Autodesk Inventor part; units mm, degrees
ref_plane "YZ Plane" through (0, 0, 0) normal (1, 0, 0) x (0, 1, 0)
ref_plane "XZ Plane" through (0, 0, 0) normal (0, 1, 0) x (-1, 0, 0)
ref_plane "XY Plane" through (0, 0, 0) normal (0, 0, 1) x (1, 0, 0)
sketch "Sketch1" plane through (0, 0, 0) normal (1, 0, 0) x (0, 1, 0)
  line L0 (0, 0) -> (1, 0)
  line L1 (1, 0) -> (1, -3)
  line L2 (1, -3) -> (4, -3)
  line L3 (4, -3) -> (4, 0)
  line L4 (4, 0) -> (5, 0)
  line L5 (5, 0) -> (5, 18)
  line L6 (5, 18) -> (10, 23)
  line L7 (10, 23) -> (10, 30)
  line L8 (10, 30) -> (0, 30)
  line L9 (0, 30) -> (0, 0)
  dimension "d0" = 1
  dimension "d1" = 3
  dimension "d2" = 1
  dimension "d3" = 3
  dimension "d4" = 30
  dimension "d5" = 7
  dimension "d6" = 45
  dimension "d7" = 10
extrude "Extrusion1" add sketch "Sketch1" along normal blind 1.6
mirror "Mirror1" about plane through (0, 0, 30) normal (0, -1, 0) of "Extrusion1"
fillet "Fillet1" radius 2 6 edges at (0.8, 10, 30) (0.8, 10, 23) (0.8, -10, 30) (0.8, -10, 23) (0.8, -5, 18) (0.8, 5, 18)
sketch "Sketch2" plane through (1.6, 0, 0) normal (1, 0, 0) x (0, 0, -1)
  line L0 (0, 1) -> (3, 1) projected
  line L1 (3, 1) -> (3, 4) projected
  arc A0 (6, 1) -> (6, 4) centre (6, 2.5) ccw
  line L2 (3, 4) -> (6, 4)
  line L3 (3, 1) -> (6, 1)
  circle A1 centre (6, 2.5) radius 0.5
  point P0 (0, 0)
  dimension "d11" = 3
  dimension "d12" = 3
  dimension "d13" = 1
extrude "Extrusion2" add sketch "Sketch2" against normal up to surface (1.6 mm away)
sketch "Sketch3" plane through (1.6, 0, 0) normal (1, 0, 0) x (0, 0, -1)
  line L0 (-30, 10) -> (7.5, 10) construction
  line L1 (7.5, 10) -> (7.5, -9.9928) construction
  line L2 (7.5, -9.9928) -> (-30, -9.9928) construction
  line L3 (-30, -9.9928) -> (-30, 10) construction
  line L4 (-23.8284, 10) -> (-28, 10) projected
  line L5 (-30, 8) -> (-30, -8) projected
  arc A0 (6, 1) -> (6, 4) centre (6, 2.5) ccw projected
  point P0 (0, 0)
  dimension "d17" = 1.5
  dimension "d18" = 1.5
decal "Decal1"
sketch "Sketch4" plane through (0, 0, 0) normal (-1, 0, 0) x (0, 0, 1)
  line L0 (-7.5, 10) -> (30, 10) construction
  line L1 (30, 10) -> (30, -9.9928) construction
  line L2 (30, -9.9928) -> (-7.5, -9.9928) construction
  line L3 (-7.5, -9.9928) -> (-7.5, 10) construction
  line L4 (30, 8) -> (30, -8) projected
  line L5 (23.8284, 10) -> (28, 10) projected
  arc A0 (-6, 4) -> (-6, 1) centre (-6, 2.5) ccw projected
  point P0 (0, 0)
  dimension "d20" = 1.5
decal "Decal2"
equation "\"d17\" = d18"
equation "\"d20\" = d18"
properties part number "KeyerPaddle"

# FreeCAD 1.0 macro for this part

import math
import FreeCAD as App
import Part
import Sketcher
from FreeCAD import Vector
Q = App.Units.Quantity


def edges_at(feature, points):
    """Names of the edges that pass closest to the given points."""
    edges = feature.Shape.Edges
    near = lambda p: min(range(len(edges)), key=lambda i: edges[i].distToShape(Part.Vertex(*p))[0])
    return sorted({f"Edge{near(p) + 1}" for p in points})

doc = App.newDocument("Part")
body = doc.addObject("PartDesign::Body", "Body")

# Sketch on YZ plane
sketch1 = body.newObject("Sketcher::SketchObject", "Sketch")
sketch1.AttachmentSupport = (doc.getObject("YZ_Plane"), [""])
sketch1.MapMode = "FlatFace"
sketch1.addGeometry([
    Part.LineSegment(Vector(0, 30, 0), Vector(0, 0, 0)),  # 0
    Part.LineSegment(Vector(0, 0, 0), Vector(1, 0, 0)),  # 1
    Part.LineSegment(Vector(1, 0, 0), Vector(1, -3, 0)),  # 2
    Part.LineSegment(Vector(1, -3, 0), Vector(4, -3, 0)),  # 3
    Part.LineSegment(Vector(4, -3, 0), Vector(4, 0, 0)),  # 4
    Part.LineSegment(Vector(4, 0, 0), Vector(5, 0, 0)),  # 5
    Part.LineSegment(Vector(5, 0, 0), Vector(5, 18, 0)),  # 6
    Part.LineSegment(Vector(5, 18, 0), Vector(10, 23, 0)),  # 7
    Part.LineSegment(Vector(10, 23, 0), Vector(10, 30, 0)),  # 8
    Part.LineSegment(Vector(10, 30, 0), Vector(0, 30, 0)),  # 9
], False)
sketch1.addConstraint([
    Sketcher.Constraint("Coincident", 0, 2, 1, 1),
    Sketcher.Constraint("Coincident", 1, 2, 2, 1),
    Sketcher.Constraint("Coincident", 2, 2, 3, 1),
    Sketcher.Constraint("Coincident", 3, 2, 4, 1),
    Sketcher.Constraint("Coincident", 4, 2, 5, 1),
    Sketcher.Constraint("Coincident", 5, 2, 6, 1),
    Sketcher.Constraint("Coincident", 6, 2, 7, 1),
    Sketcher.Constraint("Coincident", 7, 2, 8, 1),
    Sketcher.Constraint("Coincident", 8, 2, 9, 1),
    Sketcher.Constraint("Coincident", 9, 2, 0, 1),
    Sketcher.Constraint("Vertical", 0),
    Sketcher.Constraint("Horizontal", 1),
    Sketcher.Constraint("Vertical", 2),
    Sketcher.Constraint("Horizontal", 3),
    Sketcher.Constraint("Vertical", 4),
    Sketcher.Constraint("Horizontal", 5),
    Sketcher.Constraint("Vertical", 6),
    Sketcher.Constraint("Vertical", 8),
    Sketcher.Constraint("Horizontal", 9),
    Sketcher.Constraint("Coincident", 0, 2, -1, 1),
    Sketcher.Constraint("PointOnObject", 4, 2, -1),
    Sketcher.Constraint("Equal", 1, 5),
    Sketcher.Constraint("Equal", 3, 2),
    Sketcher.Constraint("DistanceX", 1, 1, 1, 2, 1.0),
    Sketcher.Constraint("DistanceX", 3, 1, 3, 2, 3.0),
    Sketcher.Constraint("DistanceX", 9, 2, 9, 1, 10.0),
    Sketcher.Constraint("DistanceY", 0, 2, 0, 1, 30.0),
    Sketcher.Constraint("DistanceY", 8, 1, 8, 2, 7.0),
    Sketcher.Constraint("Angle", 7, Q("45 deg")),
])
pad1 = body.newObject("PartDesign::Pad", "Pad")
pad1.Profile = sketch1
pad1.Length = 1.6
doc.recompute()

mirrored = body.newObject("PartDesign::Mirrored", "Mirrored")
mirrored.Originals = [pad1]
mirrored.MirrorPlane = (doc.getObject("XZ_Plane"), [""])
body.Tip = mirrored
doc.recompute()

fillet = body.newObject("PartDesign::Fillet", "Fillet")
fillet.Base = (mirrored, edges_at(mirrored, [
    (0.8, 10, 30),
    (0.8, 10, 23),
    (0.8, -10, 30),
    (0.8, -10, 23),
    (0.8, -5, 18),
    (0.8, 5, 18),
]))
fillet.Radius = 2

# Sketch on YZ plane
sketch2 = body.newObject("Sketcher::SketchObject", "Sketch001")
sketch2.AttachmentSupport = (doc.getObject("YZ_Plane"), [""])
sketch2.MapMode = "FlatFace"
sketch2.AttachmentOffset = App.Placement(Vector(0, 0, 1.6), App.Rotation())
sketch2.addGeometry([
    Part.LineSegment(Vector(4, -3, 0), Vector(1, -3, 0)),  # 0
    Part.LineSegment(Vector(1, -3, 0), Vector(1, -6, 0)),  # 1
    Part.ArcOfCircle(Part.Circle(Vector(2.5, -6, 0), Vector(0, 0, 1), 1.5), math.radians(180), math.radians(360)),  # 2
    Part.LineSegment(Vector(4, -6, 0), Vector(4, -3, 0)),  # 3
    Part.Circle(Vector(2.5, -6, 0), Vector(0, 0, 1), 0.5),  # 4
], False)
sketch2.addConstraint([
    Sketcher.Constraint("Coincident", 0, 2, 1, 1),
    Sketcher.Constraint("Tangent", 1, 2, 2, 1),
    Sketcher.Constraint("Tangent", 2, 2, 3, 1),
    Sketcher.Constraint("Coincident", 3, 2, 0, 1),
    Sketcher.Constraint("Horizontal", 0),
    Sketcher.Constraint("Vertical", 1),
    Sketcher.Constraint("Vertical", 3),
    Sketcher.Constraint("Coincident", 4, 3, 2, 3),
    Sketcher.Constraint("Equal", 0, 1),
    Sketcher.Constraint("Diameter", 4, 1.0),
    Sketcher.Constraint("Radius", 2, 1.5),
    Sketcher.Constraint("DistanceX", -1, 1, 0, 2, 1.0),
    Sketcher.Constraint("DistanceY", 0, 2, -1, 1, 3.0),
])
pad2 = body.newObject("PartDesign::Pad", "Pad001")
pad2.Profile = sketch2
pad2.Length = 1.6
pad2.Reversed = True

doc.recompute()
